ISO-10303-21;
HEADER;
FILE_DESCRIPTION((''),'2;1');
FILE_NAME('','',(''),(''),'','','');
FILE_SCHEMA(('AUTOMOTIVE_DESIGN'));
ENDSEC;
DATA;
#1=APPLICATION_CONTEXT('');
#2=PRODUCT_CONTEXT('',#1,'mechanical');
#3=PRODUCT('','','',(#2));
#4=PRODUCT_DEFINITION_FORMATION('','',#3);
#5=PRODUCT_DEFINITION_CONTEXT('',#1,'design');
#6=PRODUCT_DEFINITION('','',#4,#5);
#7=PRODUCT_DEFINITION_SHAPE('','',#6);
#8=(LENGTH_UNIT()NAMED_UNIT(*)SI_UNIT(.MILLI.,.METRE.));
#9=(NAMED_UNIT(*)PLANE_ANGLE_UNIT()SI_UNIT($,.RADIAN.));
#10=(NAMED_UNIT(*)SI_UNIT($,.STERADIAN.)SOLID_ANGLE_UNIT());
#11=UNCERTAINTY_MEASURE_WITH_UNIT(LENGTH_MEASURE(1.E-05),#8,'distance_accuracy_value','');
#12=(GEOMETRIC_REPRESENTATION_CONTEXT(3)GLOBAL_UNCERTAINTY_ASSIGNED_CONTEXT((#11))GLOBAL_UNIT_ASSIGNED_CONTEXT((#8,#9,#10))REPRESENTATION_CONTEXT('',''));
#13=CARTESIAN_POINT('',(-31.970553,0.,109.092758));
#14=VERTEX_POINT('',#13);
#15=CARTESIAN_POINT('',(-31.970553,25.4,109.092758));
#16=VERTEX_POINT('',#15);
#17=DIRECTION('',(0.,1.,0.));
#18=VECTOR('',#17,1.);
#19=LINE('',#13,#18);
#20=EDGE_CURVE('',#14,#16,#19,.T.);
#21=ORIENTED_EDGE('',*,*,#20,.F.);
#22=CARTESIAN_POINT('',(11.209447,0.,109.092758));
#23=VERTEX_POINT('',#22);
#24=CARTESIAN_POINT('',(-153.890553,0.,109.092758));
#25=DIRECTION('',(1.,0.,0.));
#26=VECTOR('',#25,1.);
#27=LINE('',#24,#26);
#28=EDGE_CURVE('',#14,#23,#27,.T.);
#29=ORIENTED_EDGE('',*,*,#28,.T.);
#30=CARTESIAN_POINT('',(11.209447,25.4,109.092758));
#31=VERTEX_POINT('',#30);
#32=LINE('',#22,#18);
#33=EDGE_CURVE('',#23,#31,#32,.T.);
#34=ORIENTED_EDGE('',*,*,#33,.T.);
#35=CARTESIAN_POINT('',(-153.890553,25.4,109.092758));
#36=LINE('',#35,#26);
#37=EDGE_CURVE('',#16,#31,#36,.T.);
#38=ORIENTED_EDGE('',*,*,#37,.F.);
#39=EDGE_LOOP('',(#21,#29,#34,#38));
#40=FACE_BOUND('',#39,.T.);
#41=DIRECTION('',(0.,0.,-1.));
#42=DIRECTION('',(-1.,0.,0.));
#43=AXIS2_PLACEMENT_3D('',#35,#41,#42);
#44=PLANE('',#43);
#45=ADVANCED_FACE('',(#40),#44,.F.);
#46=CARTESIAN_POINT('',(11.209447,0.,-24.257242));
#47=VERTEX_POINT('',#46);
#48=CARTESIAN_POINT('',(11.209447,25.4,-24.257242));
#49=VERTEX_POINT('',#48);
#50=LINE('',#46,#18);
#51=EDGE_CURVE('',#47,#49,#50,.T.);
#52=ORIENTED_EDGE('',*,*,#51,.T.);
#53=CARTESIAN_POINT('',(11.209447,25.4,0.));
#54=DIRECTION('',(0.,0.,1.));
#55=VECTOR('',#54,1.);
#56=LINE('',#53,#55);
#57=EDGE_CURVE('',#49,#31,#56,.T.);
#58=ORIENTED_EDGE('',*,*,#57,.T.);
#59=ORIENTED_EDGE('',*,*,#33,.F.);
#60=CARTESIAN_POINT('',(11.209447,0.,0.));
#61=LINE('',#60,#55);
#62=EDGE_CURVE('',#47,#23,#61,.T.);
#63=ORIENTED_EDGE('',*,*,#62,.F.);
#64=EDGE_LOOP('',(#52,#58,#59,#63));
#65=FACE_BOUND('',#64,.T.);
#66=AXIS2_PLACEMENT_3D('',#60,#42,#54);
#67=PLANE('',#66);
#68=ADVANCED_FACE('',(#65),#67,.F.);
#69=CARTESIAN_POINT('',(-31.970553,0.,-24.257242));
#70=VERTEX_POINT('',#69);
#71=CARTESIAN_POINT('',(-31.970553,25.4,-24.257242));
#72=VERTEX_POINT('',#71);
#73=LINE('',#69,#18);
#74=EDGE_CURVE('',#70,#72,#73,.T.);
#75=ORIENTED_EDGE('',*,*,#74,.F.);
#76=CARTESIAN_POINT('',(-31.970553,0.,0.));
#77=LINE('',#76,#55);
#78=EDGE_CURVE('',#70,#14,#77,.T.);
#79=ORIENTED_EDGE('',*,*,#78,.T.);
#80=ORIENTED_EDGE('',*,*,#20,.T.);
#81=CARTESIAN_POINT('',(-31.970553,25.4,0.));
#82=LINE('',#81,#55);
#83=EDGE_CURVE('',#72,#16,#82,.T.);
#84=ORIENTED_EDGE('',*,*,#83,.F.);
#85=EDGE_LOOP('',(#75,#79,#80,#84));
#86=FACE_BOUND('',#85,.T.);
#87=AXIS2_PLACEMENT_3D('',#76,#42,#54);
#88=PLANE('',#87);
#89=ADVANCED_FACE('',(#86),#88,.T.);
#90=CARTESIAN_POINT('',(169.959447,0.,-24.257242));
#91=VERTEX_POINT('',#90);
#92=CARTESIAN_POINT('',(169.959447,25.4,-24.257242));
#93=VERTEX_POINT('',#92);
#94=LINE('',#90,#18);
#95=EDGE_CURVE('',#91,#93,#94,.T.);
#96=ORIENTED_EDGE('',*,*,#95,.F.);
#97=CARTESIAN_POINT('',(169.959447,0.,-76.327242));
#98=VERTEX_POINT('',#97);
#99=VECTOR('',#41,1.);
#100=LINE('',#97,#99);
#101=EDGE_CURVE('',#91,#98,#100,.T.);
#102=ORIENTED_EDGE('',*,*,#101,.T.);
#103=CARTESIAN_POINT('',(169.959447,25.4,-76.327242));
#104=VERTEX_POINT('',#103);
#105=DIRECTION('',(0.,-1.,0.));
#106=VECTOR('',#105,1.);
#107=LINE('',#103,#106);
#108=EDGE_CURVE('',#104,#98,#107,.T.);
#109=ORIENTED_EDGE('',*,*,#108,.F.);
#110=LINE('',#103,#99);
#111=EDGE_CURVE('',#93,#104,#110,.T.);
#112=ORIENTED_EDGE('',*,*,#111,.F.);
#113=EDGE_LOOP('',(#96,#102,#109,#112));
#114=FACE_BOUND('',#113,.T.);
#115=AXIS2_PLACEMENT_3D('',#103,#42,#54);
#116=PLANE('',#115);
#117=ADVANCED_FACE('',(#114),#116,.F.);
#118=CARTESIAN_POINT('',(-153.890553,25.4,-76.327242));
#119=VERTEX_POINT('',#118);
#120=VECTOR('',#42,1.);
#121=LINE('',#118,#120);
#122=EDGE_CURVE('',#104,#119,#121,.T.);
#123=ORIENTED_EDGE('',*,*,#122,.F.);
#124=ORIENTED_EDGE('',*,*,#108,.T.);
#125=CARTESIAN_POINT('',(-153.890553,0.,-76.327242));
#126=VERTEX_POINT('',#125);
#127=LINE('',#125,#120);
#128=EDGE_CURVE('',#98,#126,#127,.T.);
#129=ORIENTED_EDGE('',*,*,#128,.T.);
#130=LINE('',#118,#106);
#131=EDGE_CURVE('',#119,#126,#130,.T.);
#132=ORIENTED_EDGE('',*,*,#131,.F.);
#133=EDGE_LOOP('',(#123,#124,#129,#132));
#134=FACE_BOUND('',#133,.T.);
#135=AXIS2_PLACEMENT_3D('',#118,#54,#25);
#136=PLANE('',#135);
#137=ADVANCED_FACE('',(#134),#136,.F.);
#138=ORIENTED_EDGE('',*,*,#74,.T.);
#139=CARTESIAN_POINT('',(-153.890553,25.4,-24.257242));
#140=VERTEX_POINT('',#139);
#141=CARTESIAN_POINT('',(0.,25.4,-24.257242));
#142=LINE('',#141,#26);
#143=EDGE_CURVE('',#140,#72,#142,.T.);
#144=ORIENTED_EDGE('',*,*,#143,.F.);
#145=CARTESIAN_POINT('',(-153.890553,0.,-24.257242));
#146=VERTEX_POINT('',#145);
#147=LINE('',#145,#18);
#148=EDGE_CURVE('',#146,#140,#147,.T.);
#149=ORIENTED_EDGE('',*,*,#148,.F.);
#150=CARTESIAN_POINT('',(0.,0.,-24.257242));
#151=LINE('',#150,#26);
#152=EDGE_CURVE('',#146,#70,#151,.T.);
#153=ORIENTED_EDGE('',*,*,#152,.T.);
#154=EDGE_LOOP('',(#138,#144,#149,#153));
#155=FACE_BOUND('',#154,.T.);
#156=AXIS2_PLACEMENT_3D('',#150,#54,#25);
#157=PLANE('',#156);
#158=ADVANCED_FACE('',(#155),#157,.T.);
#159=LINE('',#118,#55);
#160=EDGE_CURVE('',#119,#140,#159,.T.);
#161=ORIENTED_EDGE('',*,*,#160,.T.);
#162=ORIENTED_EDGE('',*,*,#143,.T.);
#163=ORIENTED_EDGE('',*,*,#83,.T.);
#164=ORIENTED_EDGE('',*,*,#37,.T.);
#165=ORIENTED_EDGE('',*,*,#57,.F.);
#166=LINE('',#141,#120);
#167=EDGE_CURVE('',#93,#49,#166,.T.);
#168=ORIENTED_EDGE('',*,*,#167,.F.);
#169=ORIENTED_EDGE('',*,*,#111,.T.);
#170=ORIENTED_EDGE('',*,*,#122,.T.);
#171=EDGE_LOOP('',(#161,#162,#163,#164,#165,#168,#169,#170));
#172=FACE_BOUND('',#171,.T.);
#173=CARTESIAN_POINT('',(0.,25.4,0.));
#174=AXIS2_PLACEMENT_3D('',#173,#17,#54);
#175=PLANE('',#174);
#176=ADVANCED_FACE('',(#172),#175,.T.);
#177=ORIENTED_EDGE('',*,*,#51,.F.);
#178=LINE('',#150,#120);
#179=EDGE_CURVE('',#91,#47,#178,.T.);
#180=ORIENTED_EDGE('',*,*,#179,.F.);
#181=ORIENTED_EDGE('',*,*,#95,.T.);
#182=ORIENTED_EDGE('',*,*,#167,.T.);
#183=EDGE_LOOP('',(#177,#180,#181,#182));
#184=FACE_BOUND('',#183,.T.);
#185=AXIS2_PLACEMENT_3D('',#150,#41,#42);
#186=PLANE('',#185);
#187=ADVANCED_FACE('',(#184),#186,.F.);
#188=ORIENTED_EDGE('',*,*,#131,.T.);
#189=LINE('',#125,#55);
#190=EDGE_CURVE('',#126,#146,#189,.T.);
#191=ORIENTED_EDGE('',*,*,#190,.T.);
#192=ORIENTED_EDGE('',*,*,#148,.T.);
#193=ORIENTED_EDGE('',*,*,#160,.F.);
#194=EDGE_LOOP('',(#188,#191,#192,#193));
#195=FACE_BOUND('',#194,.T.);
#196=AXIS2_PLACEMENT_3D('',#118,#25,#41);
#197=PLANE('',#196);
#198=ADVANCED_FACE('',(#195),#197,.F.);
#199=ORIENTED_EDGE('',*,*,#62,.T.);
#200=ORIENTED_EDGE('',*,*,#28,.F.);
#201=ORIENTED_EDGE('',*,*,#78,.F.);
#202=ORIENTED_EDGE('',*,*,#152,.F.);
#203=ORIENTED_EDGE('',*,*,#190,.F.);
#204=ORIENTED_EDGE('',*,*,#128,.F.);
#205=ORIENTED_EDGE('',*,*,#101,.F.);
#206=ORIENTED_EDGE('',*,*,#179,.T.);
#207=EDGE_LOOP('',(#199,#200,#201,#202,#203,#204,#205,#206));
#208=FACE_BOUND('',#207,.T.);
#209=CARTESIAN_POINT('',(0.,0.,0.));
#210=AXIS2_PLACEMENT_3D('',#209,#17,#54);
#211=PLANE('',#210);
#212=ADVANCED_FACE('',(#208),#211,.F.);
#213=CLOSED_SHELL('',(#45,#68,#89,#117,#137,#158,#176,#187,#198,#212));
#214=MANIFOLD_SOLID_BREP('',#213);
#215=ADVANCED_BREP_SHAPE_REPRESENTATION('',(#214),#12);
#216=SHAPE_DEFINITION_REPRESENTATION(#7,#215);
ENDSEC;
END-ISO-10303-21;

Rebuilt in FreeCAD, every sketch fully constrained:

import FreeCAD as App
import Part
import Sketcher
from FreeCAD import Vector
Q = App.Units.Quantity


def add_polygon(sketch, points):
    """Adds a closed chain of lines whose ends are joined by coincident constraints."""
    first, n = sketch.GeometryCount, len(points)
    for a, b in zip(points, points[1:] + points[:1]):
        sketch.addGeometry(Part.LineSegment(App.Vector(*a, 0), App.Vector(*b, 0)), False)
    for i in range(n):
        sketch.addConstraint(Sketcher.Constraint("Coincident", first + i, 2, first + (i + 1) % n, 1))

doc = App.newDocument("Part")
body = doc.addObject("PartDesign::Body", "Body")

sketch1 = body.newObject("Sketcher::SketchObject", "Sketch")
sketch1.AttachmentSupport = (doc.getObject("XZ_Plane"), [""])
sketch1.MapMode = "FlatFace"
add_polygon(sketch1, [(-154, -76), (-154, 109), (170, 109), (170, -76)])
sketch1.addConstraint([
    Sketcher.Constraint("Vertical", 0),
    Sketcher.Constraint("Horizontal", 1),
    Sketcher.Constraint("Vertical", 2),
    Sketcher.Constraint("Horizontal", 3),
    Sketcher.Constraint("DistanceY", 0, 1, 0, 2, Q("7.3 in")),
    Sketcher.Constraint("DistanceX", 1, 1, 1, 2, Q("12.75 in")),
    Sketcher.Constraint("DistanceX", 0, 2, -1, 1, 153.890553),
    Sketcher.Constraint("DistanceY", -1, 1, 0, 2, 109.092758),
])
pad1 = body.newObject("PartDesign::Pad", "Pad")
pad1.Profile = sketch1
pad1.Length = Q("1 in")
pad1.Reversed = True

sketch2 = body.newObject("Sketcher::SketchObject", "Sketch001")
sketch2.AttachmentSupport = (doc.getObject("XZ_Plane"), [""])
sketch2.MapMode = "FlatFace"
sketch2.AttachmentOffset = App.Placement(Vector(0, 0, -1 * 25.4), App.Rotation())
add_polygon(sketch2, [(-154, -24), (-154, 109), (-32, 109), (-32, -24)])
add_polygon(sketch2, [(11, -24), (11, 109), (170, 109), (170, -24)])
sketch2.addConstraint([
    Sketcher.Constraint("Vertical", 0),
    Sketcher.Constraint("Horizontal", 1),
    Sketcher.Constraint("Vertical", 2),
    Sketcher.Constraint("Horizontal", 3),
    Sketcher.Constraint("Vertical", 4),
    Sketcher.Constraint("Horizontal", 5),
    Sketcher.Constraint("Vertical", 6),
    Sketcher.Constraint("Horizontal", 7),
    Sketcher.Constraint("Horizontal", 1, 2, 4, 2),
    Sketcher.Constraint("Horizontal", 3, 2, 6, 2),
    Sketcher.Constraint("DistanceX", 1, 1, 1, 2, Q("4.8 in")),
    Sketcher.Constraint("DistanceX", 5, 1, 5, 2, Q("6.25 in")),
    Sketcher.Constraint("DistanceY", 0, 1, 0, 2, Q("5.25 in")),
    Sketcher.Constraint("DistanceX", 1, 2, 4, 2, Q("1.7 in")),
    Sketcher.Constraint("DistanceX", 0, 2, -1, 1, 153.890553),
    Sketcher.Constraint("DistanceY", -1, 1, 0, 2, 109.092758),
])
pocket1 = body.newObject("PartDesign::Pocket", "Pocket")
pocket1.Profile = sketch2
pocket1.Length = Q("1 in")
pocket1.Reversed = True

doc.recompute()
